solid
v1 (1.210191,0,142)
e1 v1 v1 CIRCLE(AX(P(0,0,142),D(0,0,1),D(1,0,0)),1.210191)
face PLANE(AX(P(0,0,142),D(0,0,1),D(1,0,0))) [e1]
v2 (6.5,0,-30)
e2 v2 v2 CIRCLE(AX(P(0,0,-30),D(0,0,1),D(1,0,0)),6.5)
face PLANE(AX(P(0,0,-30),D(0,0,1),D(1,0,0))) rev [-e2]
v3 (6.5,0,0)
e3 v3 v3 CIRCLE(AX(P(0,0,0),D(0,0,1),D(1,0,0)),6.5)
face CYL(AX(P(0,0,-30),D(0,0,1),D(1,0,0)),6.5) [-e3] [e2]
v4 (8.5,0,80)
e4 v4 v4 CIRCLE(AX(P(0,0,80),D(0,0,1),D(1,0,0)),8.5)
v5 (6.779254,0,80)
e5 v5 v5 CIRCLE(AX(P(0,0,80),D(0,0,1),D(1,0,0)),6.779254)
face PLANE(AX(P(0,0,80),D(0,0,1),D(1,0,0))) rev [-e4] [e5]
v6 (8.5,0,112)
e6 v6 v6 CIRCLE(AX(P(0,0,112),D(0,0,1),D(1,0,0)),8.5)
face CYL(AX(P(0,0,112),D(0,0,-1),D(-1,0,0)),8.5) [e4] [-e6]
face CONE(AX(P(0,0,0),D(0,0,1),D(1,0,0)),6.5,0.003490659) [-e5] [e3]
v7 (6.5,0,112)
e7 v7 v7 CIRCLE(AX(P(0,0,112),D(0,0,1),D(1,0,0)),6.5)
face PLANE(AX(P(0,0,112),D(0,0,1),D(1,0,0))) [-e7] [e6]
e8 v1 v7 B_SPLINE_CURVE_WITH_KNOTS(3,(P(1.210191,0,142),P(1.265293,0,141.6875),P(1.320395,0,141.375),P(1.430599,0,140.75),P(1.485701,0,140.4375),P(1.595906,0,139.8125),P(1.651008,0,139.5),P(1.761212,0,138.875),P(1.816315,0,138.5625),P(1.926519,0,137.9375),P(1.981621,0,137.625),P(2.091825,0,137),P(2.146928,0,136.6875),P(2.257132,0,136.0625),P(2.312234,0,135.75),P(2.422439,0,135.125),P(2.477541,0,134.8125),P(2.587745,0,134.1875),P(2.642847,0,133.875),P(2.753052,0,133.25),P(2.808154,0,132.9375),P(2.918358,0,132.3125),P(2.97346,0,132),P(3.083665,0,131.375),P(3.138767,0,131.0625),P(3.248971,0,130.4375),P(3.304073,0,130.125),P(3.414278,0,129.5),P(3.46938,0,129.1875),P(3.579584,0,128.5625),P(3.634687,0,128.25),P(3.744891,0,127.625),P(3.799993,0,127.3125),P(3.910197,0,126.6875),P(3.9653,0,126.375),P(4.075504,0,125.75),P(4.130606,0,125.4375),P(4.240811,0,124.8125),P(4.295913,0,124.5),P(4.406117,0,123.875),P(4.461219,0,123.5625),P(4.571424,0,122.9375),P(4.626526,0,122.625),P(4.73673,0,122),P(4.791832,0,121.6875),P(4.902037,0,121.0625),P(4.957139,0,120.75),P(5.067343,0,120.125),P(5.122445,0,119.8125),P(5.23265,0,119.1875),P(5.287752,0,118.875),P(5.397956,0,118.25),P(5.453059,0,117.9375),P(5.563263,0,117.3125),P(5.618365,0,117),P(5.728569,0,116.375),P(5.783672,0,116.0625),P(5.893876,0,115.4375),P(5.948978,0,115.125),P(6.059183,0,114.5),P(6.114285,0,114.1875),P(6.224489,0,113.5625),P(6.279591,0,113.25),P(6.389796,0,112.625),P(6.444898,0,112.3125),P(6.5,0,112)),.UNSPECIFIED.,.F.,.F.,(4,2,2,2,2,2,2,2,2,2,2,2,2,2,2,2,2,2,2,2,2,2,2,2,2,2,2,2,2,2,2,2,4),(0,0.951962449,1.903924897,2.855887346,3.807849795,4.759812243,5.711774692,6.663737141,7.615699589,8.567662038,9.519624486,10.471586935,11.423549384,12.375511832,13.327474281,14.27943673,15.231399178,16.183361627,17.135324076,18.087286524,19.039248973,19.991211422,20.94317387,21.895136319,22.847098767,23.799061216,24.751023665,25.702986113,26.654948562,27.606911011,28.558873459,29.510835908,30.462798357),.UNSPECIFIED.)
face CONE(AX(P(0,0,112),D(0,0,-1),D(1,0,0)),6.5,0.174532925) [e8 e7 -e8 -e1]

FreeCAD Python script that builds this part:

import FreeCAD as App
import Part
import Sketcher
Q = App.Units.Quantity


def faces_at(feature, points):
    """Names of the faces that lie closest to the given points."""
    faces = feature.Shape.Faces
    near = lambda p: min(range(len(faces)), key=lambda i: faces[i].distToShape(Part.Vertex(*p))[0])
    return sorted({f"Face{near(p) + 1}" for p in points})

doc = App.newDocument("Part")
body = doc.addObject("PartDesign::Body", "Body")

# Sketch on XY plane
sketch1 = doc.addObject("Sketcher::SketchObject", "Sketch")
body.addObject(sketch1)
sketch1.AttachmentSupport = (doc.XY_Plane, [""])
sketch1.MapMode = "FlatFace"
sketch1.addGeometry(Part.Circle(App.Vector(0, 0, 0), App.Vector(0, 0, 1), 6), False)
sketch1.addConstraint(Sketcher.Constraint("Coincident", 0, 3, -1, 1))
sketch1.addConstraint(Sketcher.Constraint("Diameter", 0, Q("13 mm")))
pad1 = doc.addObject("PartDesign::Pad", "Pad")
body.addObject(pad1)
pad1.Profile = sketch1
pad1.Length = 80
doc.recompute()

draft = doc.addObject("PartDesign::Draft", "Draft")
body.addObject(draft)
draft.Base = (pad1, faces_at(pad1, [(-6.5, 0, 40)]))
draft.NeutralPlane = (doc.XY_Plane, [""])
draft.Angle = 0.2
draft.Reversed = True

# Sketch on XY plane
sketch2 = doc.addObject("Sketcher::SketchObject", "Sketch001")
body.addObject(sketch2)
sketch2.AttachmentSupport = (doc.XY_Plane, [""])
sketch2.MapMode = "FlatFace"
sketch2.addGeometry(Part.Circle(App.Vector(0, 0, 0), App.Vector(0, 0, 1), 6), False)
sketch2.addConstraint(Sketcher.Constraint("Coincident", 0, 3, -1, 1))
sketch2.addConstraint(Sketcher.Constraint("Diameter", 0, Q("13 mm")))
pad2 = doc.addObject("PartDesign::Pad", "Pad001")
body.addObject(pad2)
pad2.Profile = sketch2
pad2.Length = 30
pad2.Reversed = True

# Sketch on XY plane
sketch3 = doc.addObject("Sketcher::SketchObject", "Sketch002")
body.addObject(sketch3)
sketch3.AttachmentSupport = (doc.XY_Plane, [""])
sketch3.MapMode = "FlatFace"
sketch3.AttachmentOffset = App.Placement(App.Vector(0, 0, 80), App.Rotation())
sketch3.addGeometry(Part.Circle(App.Vector(0, 0, 0), App.Vector(0, 0, 1), 8), False)
sketch3.addConstraint(Sketcher.Constraint("Coincident", 0, 3, -1, 1))
sketch3.addConstraint(Sketcher.Constraint("Diameter", 0, Q("17 mm")))
pad3 = doc.addObject("PartDesign::Pad", "Pad002")
body.addObject(pad3)
pad3.Profile = sketch3
pad3.Length = 32

# Sketch on XY plane
sketch4 = doc.addObject("Sketcher::SketchObject", "Sketch003")
body.addObject(sketch4)
sketch4.AttachmentSupport = (doc.XY_Plane, [""])
sketch4.MapMode = "FlatFace"
sketch4.AttachmentOffset = App.Placement(App.Vector(0, 0, 112), App.Rotation())
sketch4.addGeometry(Part.Circle(App.Vector(0, 0, 0), App.Vector(0, 0, 1), 6), False)
sketch4.addConstraint(Sketcher.Constraint("Coincident", 0, 3, -1, 1))
sketch4.addConstraint(Sketcher.Constraint("Diameter", 0, Q("13 mm")))
pad4 = doc.addObject("PartDesign::Pad", "Pad003")
body.addObject(pad4)
pad4.Profile = sketch4
pad4.Length = 30
pad4.TaperAngle = -10

doc.recompute()
